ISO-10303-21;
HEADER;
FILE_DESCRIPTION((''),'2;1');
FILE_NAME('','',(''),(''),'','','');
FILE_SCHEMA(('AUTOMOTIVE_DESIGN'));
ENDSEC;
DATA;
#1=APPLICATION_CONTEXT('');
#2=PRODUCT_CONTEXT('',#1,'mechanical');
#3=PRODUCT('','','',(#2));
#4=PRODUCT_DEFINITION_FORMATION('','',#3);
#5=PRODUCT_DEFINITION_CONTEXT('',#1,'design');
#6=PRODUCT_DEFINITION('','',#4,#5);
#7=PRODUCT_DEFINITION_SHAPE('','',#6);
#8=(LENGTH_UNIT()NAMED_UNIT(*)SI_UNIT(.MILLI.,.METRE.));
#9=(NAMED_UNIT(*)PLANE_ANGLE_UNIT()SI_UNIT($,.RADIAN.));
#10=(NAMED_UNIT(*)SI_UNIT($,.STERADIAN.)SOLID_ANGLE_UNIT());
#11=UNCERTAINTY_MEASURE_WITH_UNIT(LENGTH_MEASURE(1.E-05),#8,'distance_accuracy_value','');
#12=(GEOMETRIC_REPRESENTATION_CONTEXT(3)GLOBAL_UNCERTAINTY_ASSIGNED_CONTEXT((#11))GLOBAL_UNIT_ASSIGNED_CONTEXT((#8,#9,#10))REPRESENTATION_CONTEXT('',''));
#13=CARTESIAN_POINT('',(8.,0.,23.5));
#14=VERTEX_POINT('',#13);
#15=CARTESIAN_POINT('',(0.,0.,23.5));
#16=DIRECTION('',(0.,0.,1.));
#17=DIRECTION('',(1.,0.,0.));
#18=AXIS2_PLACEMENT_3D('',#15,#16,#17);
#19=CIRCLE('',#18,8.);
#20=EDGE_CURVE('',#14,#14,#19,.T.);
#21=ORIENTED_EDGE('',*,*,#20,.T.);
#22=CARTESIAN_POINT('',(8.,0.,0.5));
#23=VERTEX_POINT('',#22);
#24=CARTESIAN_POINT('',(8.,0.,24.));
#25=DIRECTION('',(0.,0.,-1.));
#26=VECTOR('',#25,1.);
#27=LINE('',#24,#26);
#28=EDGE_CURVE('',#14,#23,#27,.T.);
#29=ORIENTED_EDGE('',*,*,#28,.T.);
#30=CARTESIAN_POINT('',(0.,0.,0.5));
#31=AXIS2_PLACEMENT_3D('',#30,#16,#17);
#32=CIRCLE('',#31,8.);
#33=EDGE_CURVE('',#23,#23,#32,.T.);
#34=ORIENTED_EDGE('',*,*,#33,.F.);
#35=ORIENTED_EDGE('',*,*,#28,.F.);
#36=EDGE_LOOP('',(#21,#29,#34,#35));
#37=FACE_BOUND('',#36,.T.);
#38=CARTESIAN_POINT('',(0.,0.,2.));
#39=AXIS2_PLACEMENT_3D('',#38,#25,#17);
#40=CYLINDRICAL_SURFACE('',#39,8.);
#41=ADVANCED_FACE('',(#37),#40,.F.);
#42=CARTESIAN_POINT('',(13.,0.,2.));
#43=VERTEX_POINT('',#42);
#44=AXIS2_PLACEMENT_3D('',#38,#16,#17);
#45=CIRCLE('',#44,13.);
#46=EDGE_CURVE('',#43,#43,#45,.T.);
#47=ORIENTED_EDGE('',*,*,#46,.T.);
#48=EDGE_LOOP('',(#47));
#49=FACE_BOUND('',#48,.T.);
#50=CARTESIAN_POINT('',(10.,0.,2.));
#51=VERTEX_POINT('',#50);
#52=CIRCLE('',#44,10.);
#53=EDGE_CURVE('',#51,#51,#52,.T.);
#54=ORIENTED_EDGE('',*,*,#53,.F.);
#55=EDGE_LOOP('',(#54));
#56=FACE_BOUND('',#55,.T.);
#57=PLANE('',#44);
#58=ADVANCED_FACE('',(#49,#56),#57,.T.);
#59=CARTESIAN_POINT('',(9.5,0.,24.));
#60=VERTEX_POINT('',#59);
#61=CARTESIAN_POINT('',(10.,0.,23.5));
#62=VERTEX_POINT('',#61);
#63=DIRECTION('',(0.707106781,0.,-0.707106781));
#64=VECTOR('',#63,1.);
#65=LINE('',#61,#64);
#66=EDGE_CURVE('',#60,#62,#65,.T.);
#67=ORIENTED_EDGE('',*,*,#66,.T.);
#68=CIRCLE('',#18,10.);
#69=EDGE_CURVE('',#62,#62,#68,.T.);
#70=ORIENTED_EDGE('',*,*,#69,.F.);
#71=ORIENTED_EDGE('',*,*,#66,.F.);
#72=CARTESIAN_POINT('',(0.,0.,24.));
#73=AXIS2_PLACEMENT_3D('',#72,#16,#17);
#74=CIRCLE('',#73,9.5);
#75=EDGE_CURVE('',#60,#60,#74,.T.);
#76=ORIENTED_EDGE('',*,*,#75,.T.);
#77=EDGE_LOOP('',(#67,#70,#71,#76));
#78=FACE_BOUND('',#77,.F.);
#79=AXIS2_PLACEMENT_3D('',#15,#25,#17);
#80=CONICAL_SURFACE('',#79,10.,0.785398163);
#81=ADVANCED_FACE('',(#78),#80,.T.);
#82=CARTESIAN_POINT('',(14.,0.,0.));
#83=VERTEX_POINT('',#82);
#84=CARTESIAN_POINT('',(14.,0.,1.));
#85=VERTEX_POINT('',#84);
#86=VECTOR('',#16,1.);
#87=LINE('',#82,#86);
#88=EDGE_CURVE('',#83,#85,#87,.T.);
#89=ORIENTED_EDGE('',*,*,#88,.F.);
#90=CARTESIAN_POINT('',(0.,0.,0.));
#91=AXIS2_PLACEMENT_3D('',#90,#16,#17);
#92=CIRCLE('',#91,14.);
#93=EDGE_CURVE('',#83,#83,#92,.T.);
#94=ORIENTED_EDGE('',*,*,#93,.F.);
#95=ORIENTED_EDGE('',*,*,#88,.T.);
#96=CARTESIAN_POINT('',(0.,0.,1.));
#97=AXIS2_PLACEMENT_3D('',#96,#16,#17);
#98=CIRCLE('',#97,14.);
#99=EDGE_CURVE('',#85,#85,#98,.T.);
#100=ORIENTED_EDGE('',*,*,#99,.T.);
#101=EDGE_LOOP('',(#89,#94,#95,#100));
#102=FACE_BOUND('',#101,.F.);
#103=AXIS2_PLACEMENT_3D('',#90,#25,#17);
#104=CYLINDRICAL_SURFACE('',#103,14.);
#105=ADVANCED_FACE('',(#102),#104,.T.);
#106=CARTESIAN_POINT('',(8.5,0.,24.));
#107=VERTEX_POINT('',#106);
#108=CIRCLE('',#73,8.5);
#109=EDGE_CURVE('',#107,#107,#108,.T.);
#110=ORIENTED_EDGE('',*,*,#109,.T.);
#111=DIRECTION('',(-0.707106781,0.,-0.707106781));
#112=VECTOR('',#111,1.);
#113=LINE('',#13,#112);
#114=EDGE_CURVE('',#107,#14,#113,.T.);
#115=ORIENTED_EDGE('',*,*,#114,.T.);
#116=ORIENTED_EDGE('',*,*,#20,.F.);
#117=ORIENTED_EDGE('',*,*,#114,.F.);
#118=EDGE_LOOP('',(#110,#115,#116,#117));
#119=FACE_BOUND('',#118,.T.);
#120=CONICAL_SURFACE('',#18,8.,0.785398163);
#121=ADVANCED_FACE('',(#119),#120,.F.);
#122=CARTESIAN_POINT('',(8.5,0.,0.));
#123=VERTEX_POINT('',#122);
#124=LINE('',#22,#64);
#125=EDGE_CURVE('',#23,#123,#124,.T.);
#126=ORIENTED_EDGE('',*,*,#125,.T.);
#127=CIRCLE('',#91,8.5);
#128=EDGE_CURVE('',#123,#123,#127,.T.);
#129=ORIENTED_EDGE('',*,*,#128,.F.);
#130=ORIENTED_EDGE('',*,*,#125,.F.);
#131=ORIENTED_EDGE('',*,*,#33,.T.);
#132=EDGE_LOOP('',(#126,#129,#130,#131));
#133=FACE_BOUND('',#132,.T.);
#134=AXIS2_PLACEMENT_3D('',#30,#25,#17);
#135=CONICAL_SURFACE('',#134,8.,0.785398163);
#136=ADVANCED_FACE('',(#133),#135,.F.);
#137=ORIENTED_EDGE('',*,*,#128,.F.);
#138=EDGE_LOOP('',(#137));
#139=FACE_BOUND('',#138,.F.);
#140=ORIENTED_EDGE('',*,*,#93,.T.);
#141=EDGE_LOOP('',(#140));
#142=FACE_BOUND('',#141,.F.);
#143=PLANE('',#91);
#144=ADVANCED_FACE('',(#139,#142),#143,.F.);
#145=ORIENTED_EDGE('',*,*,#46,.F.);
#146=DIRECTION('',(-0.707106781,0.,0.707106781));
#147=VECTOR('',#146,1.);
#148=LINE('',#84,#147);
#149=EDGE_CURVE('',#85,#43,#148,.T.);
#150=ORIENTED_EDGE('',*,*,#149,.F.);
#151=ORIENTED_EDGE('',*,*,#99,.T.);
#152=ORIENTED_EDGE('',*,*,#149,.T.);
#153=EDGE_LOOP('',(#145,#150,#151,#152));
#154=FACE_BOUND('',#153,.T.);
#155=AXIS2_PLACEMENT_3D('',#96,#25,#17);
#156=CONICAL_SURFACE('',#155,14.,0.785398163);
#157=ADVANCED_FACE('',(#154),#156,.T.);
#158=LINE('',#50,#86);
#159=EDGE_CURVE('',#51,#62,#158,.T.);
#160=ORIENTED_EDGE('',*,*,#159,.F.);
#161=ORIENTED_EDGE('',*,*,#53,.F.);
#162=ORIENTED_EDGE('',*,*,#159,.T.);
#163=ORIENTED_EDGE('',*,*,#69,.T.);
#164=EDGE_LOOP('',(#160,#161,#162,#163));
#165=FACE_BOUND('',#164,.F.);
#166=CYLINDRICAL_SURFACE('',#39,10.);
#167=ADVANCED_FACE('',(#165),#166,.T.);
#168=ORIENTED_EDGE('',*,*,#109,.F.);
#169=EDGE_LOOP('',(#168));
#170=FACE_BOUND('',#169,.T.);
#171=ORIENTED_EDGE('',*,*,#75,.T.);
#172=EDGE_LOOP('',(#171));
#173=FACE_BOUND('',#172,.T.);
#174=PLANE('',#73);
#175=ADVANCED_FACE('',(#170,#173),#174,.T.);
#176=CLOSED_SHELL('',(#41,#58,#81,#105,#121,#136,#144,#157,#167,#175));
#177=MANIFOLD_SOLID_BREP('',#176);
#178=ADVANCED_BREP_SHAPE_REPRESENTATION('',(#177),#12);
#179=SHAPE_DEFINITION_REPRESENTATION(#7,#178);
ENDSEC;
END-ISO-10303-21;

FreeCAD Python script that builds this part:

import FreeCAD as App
import Part
import Sketcher

V = App.Vector
Q = App.Units.Quantity


def edges_at(feature, points):
    """Names of the edges that pass closest to the given points."""
    edges = feature.Shape.Edges
    near = lambda p: min(range(len(edges)), key=lambda i: edges[i].distToShape(Part.Vertex(*p))[0])
    return sorted({f"Edge{near(p) + 1}" for p in points})

doc = App.newDocument("Part")
body = doc.addObject("PartDesign::Body", "Body")

sketch1 = body.newObject("Sketcher::SketchObject", "Sketch")
sketch1.AttachmentSupport = (doc.getObject("XY_Plane"), [""])
sketch1.MapMode = "FlatFace"
sketch1.addGeometry([
    Part.Circle(V(0, 0, 0), V(0, 0, 1), 14),
    Part.Circle(V(0, 0, 0), V(0, 0, 1), 8),
], False)
sketch1.addConstraint([
    Sketcher.Constraint("Coincident", 0, 3, -1, 1),
    Sketcher.Constraint("Coincident", 1, 3, -1, 1),
    Sketcher.Constraint("Diameter", 0, Q("28 mm")),
    Sketcher.Constraint("Diameter", 1, Q("16 mm")),
])
pad1 = body.newObject("PartDesign::Pad", "Pad")
pad1.Profile = sketch1
pad1.Length = 2

sketch2 = body.newObject("Sketcher::SketchObject", "Sketch001")
sketch2.AttachmentSupport = (doc.getObject("XY_Plane"), [""])
sketch2.MapMode = "FlatFace"
sketch2.AttachmentOffset = App.Placement(V(0, 0, 2), App.Rotation())
sketch2.addGeometry([
    Part.Circle(V(0, 0, 0), V(0, 0, 1), 10),
    Part.Circle(V(0, 0, 0), V(0, 0, 1), 8),
], False)
sketch2.addConstraint([
    Sketcher.Constraint("Coincident", 0, 3, -1, 1),
    Sketcher.Constraint("Coincident", 1, 3, -1, 1),
    Sketcher.Constraint("Diameter", 0, Q("20 mm")),
    Sketcher.Constraint("Diameter", 1, Q("16 mm")),
])
pad2 = body.newObject("PartDesign::Pad", "Pad001")
pad2.Profile = sketch2
pad2.Length = 22
doc.recompute()

chamfer = body.newObject("PartDesign::Chamfer", "Chamfer")
chamfer.Base = (pad2, edges_at(pad2, [(-8, 0, 24)]))
chamfer.Size = 0.5
doc.recompute()

chamfer2 = body.newObject("PartDesign::Chamfer", "Chamfer001")
chamfer2.Base = (chamfer, edges_at(chamfer, [(-10, 0, 24)]))
chamfer2.Size = 0.5
doc.recompute()

chamfer3 = body.newObject("PartDesign::Chamfer", "Chamfer002")
chamfer3.Base = (chamfer2, edges_at(chamfer2, [(-8, 0, 0)]))
chamfer3.Size = 0.5
doc.recompute()

chamfer4 = body.newObject("PartDesign::Chamfer", "Chamfer003")
chamfer4.Base = (chamfer3, edges_at(chamfer3, [(-14, 0, 2)]))
chamfer4.Size = 1

doc.recompute()
